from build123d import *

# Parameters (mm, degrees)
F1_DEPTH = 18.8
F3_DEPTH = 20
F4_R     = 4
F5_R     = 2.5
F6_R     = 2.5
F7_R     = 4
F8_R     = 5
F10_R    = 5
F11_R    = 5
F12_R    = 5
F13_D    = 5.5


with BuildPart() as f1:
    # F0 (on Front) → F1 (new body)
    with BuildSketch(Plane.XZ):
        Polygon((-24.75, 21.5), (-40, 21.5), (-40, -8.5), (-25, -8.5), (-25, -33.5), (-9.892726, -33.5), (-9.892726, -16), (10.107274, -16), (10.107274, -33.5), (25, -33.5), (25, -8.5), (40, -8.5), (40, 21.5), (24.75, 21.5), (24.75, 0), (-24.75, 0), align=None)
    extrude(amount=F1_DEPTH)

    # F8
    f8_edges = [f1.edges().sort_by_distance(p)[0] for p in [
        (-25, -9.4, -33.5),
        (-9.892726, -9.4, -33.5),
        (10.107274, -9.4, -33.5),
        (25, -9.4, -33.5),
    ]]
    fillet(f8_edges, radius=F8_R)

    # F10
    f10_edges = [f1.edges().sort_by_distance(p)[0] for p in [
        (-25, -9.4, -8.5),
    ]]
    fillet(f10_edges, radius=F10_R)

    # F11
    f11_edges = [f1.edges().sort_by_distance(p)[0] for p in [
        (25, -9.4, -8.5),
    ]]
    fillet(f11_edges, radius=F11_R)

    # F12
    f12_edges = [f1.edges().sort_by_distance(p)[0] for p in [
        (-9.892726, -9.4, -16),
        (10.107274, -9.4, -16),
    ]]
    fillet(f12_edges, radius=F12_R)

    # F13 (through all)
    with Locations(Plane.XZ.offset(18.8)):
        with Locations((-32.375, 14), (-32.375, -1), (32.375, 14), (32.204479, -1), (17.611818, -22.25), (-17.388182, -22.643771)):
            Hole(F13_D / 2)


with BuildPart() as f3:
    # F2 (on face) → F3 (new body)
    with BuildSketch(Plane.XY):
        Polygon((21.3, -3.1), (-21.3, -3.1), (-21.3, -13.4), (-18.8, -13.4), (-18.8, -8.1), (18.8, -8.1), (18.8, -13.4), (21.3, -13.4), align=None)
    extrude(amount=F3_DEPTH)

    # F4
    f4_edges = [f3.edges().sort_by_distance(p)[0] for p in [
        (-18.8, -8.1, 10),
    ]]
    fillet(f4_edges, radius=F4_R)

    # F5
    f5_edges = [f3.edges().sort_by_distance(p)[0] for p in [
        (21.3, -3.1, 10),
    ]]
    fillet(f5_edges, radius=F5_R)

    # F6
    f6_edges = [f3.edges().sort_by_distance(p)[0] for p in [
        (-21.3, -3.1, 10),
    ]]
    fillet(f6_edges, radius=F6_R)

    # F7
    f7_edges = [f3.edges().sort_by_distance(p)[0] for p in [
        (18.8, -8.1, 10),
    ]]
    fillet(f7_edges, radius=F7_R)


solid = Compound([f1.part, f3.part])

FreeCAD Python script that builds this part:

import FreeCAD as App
import Part
import Sketcher
from FreeCAD import Vector
Q = App.Units.Quantity


def edges_at(feature, points):
    """Names of the edges that pass closest to the given points."""
    edges = feature.Shape.Edges
    near = lambda p: min(range(len(edges)), key=lambda i: edges[i].distToShape(Part.Vertex(*p))[0])
    return sorted({f"Edge{near(p) + 1}" for p in points})

doc = App.newDocument("Part")
body = doc.addObject("PartDesign::Body", "Body")

sketch1 = doc.addObject("Sketcher::SketchObject", "Sketch")
body.addObject(sketch1)
sketch1.AttachmentSupport = (doc.XZ_Plane, [""])
sketch1.MapMode = "FlatFace"
sketch1.addGeometry(Part.LineSegment(Vector(-25, 22, 0), Vector(-40, 22, 0)), False)
sketch1.addGeometry(Part.LineSegment(Vector(-40, 22, 0), Vector(-40, -8, 0)), False)
sketch1.addGeometry(Part.LineSegment(Vector(-40, -8, 0), Vector(-25, -8, 0)), False)
sketch1.addGeometry(Part.LineSegment(Vector(-25, -8, 0), Vector(-25, -34, 0)), False)
sketch1.addGeometry(Part.LineSegment(Vector(-25, -34, 0), Vector(-10, -34, 0)), False)
sketch1.addGeometry(Part.LineSegment(Vector(-10, -34, 0), Vector(-10, -16, 0)), False)
sketch1.addGeometry(Part.LineSegment(Vector(-10, -16, 0), Vector(10, -16, 0)), False)
sketch1.addGeometry(Part.LineSegment(Vector(10, -16, 0), Vector(10, -34, 0)), False)
sketch1.addGeometry(Part.LineSegment(Vector(10, -34, 0), Vector(25, -34, 0)), False)
sketch1.addGeometry(Part.LineSegment(Vector(25, -34, 0), Vector(25, -8, 0)), False)
sketch1.addGeometry(Part.LineSegment(Vector(25, -8, 0), Vector(40, -8, 0)), False)
sketch1.addGeometry(Part.LineSegment(Vector(40, -8, 0), Vector(40, 22, 0)), False)
sketch1.addGeometry(Part.LineSegment(Vector(40, 22, 0), Vector(25, 22, 0)), False)
sketch1.addGeometry(Part.LineSegment(Vector(25, 22, 0), Vector(25, 0, 0)), False)
sketch1.addGeometry(Part.LineSegment(Vector(25, 0, 0), Vector(-25, 0, 0)), False)
sketch1.addGeometry(Part.LineSegment(Vector(-25, 0, 0), Vector(-25, 22, 0)), False)
sketch1.addConstraint(Sketcher.Constraint("Coincident", 0, 2, 1, 1))
sketch1.addConstraint(Sketcher.Constraint("Coincident", 1, 2, 2, 1))
sketch1.addConstraint(Sketcher.Constraint("Coincident", 2, 2, 3, 1))
sketch1.addConstraint(Sketcher.Constraint("Coincident", 3, 2, 4, 1))
sketch1.addConstraint(Sketcher.Constraint("Coincident", 4, 2, 5, 1))
sketch1.addConstraint(Sketcher.Constraint("Coincident", 5, 2, 6, 1))
sketch1.addConstraint(Sketcher.Constraint("Coincident", 6, 2, 7, 1))
sketch1.addConstraint(Sketcher.Constraint("Coincident", 7, 2, 8, 1))
sketch1.addConstraint(Sketcher.Constraint("Coincident", 8, 2, 9, 1))
sketch1.addConstraint(Sketcher.Constraint("Coincident", 9, 2, 10, 1))
sketch1.addConstraint(Sketcher.Constraint("Coincident", 10, 2, 11, 1))
sketch1.addConstraint(Sketcher.Constraint("Coincident", 11, 2, 12, 1))
sketch1.addConstraint(Sketcher.Constraint("Coincident", 12, 2, 13, 1))
sketch1.addConstraint(Sketcher.Constraint("Coincident", 13, 2, 14, 1))
sketch1.addConstraint(Sketcher.Constraint("Coincident", 14, 2, 15, 1))
sketch1.addConstraint(Sketcher.Constraint("Coincident", 15, 2, 0, 1))
sketch1.addConstraint(Sketcher.Constraint("Horizontal", 0))
sketch1.addConstraint(Sketcher.Constraint("Vertical", 1))
sketch1.addConstraint(Sketcher.Constraint("Horizontal", 2))
sketch1.addConstraint(Sketcher.Constraint("Vertical", 3))
sketch1.addConstraint(Sketcher.Constraint("Horizontal", 4))
sketch1.addConstraint(Sketcher.Constraint("Vertical", 5))
sketch1.addConstraint(Sketcher.Constraint("Horizontal", 6))
sketch1.addConstraint(Sketcher.Constraint("Vertical", 7))
sketch1.addConstraint(Sketcher.Constraint("Horizontal", 8))
sketch1.addConstraint(Sketcher.Constraint("Vertical", 9))
sketch1.addConstraint(Sketcher.Constraint("Horizontal", 10))
sketch1.addConstraint(Sketcher.Constraint("Vertical", 11))
sketch1.addConstraint(Sketcher.Constraint("Horizontal", 12))
sketch1.addConstraint(Sketcher.Constraint("Vertical", 13))
sketch1.addConstraint(Sketcher.Constraint("Horizontal", 14))
sketch1.addConstraint(Sketcher.Constraint("Vertical", 15))
sketch1.addConstraint(Sketcher.Constraint("Symmetric", 13, 2, 14, 2, -1, 1))
sketch1.addConstraint(Sketcher.Constraint("Symmetric", 3, 2, 8, 2, -2))
sketch1.addConstraint(Sketcher.Constraint("Symmetric", 1, 2, 10, 2, -2))
sketch1.addConstraint(Sketcher.Constraint("Horizontal", 0, 2, 11, 2))
sketch1.addConstraint(Sketcher.Constraint("DistanceX", 2, 1, 2, 2, Q("15 mm")))
sketch1.addConstraint(Sketcher.Constraint("DistanceX", 6, 1, 6, 2, Q("20 mm")))
sketch1.addConstraint(Sketcher.Constraint("DistanceY", 1, 2, 1, 1, Q("30 mm")))
sketch1.addConstraint(Sketcher.Constraint("DistanceY", 3, 2, 3, 1, Q("25 mm")))
sketch1.addConstraint(Sketcher.Constraint("DistanceX", 14, 2, 14, 1, Q("49.5 mm")))
sketch1.addConstraint(Sketcher.Constraint("DistanceY", 5, 1, 5, 2, Q("17.5 mm")))
sketch1.addConstraint(Sketcher.Constraint("DistanceY", 13, 2, 13, 1, Q("21.5 mm")))
sketch1.addConstraint(Sketcher.Constraint("DistanceX", 0, 2, -1, 1, Q("40 mm")))
sketch1.addConstraint(Sketcher.Constraint("DistanceX", 4, 1, 4, 2, Q("15.107274 mm")))
pad1 = doc.addObject("PartDesign::Pad", "Pad")
body.addObject(pad1)
pad1.Profile = sketch1
pad1.Length = 18.8
doc.recompute()

fillet = doc.addObject("PartDesign::Fillet", "Fillet")
body.addObject(fillet)
fillet.Base = (pad1, edges_at(pad1, [
    (-25, -9.4, -33.5),
    (-9.893, -9.4, -33.5),
    (10.107, -9.4, -33.5),
    (25, -9.4, -33.5),
]))
fillet.Radius = 5
doc.recompute()

fillet2 = doc.addObject("PartDesign::Fillet", "Fillet001")
body.addObject(fillet2)
fillet2.Base = (fillet, edges_at(fillet, [(-25, -9.4, -8.5)]))
fillet2.Radius = 5
doc.recompute()

fillet3 = doc.addObject("PartDesign::Fillet", "Fillet002")
body.addObject(fillet3)
fillet3.Base = (fillet2, edges_at(fillet2, [(25, -9.4, -8.5)]))
fillet3.Radius = 5
doc.recompute()

fillet4 = doc.addObject("PartDesign::Fillet", "Fillet003")
body.addObject(fillet4)
fillet4.Base = (fillet3, edges_at(fillet3, [(-9.893, -9.4, -16), (10.107, -9.4, -16)]))
fillet4.Radius = 5

sketch2 = doc.addObject("Sketcher::SketchObject", "Sketch001")
body.addObject(sketch2)
sketch2.AttachmentSupport = (doc.XZ_Plane, [""])
sketch2.MapMode = "FlatFace"
sketch2.AttachmentOffset = App.Placement(Vector(0, 0, 18.8), App.Rotation())
sketch2.addGeometry(Part.Circle(Vector(-32.4, 14, 0), Vector(0, 0, 1), 2.8), False)
sketch2.addGeometry(Part.Circle(Vector(-32.4, -1, 0), Vector(0, 0, 1), 2.8), False)
sketch2.addGeometry(Part.Circle(Vector(32.4, 14, 0), Vector(0, 0, 1), 2.8), False)
sketch2.addGeometry(Part.Circle(Vector(32.2, -1, 0), Vector(0, 0, 1), 2.8), False)
sketch2.addGeometry(Part.Circle(Vector(17.6, -22.2, 0), Vector(0, 0, 1), 2.8), False)
sketch2.addGeometry(Part.Circle(Vector(-17.4, -22.6, 0), Vector(0, 0, 1), 2.8), False)
sketch2.addConstraint(Sketcher.Constraint("Equal", 0, 1))
sketch2.addConstraint(Sketcher.Constraint("Equal", 1, 2))
sketch2.addConstraint(Sketcher.Constraint("Equal", 2, 3))
sketch2.addConstraint(Sketcher.Constraint("Equal", 3, 4))
sketch2.addConstraint(Sketcher.Constraint("Equal", 4, 5))
sketch2.addConstraint(Sketcher.Constraint("Symmetric", 0, 3, 2, 3, -2))
sketch2.addConstraint(Sketcher.Constraint("Horizontal", 1, 3, 3, 3))
sketch2.addConstraint(Sketcher.Constraint("Vertical", 0, 3, 1, 3))
sketch2.addConstraint(Sketcher.Constraint("Diameter", 0, Q("5.5 mm")))
sketch2.addConstraint(Sketcher.Constraint("DistanceY", -1, 1, 0, 3, Q("14 mm")))
sketch2.addConstraint(Sketcher.Constraint("DistanceY", 1, 3, -1, 1, Q("1 mm")))
sketch2.addConstraint(Sketcher.Constraint("DistanceX", 5, 3, 4, 3, Q("35 mm")))
sketch2.addConstraint(Sketcher.Constraint("DistanceY", 4, 3, -1, 1, Q("22.25 mm")))
sketch2.addConstraint(Sketcher.Constraint("DistanceX", 0, 3, 2, 3, Q("64.75 mm")))
sketch2.addConstraint(Sketcher.Constraint("DistanceX", -1, 1, 3, 3, Q("32.204479 mm")))
sketch2.addConstraint(Sketcher.Constraint("DistanceY", 5, 3, -1, 1, Q("22.643771 mm")))
sketch2.addConstraint(Sketcher.Constraint("DistanceX", 4, 3, 3, 3, Q("14.592661 mm")))
doc.recompute()
hole = doc.addObject("PartDesign::Hole", "Hole")
body.addObject(hole)
hole.Profile = sketch2
hole.ThreadType = "None"
hole.Diameter = 5.5
hole.DepthType = "ThroughAll"
body2 = doc.addObject("PartDesign::Body", "Body001")

sketch3 = doc.addObject("Sketcher::SketchObject", "Sketch002")
body2.addObject(sketch3)
sketch3.AttachmentSupport = (doc.getObject("XY_Plane001"), [""])
sketch3.MapMode = "FlatFace"
sketch3.addGeometry(Part.LineSegment(Vector(21.3, -3.1, 0), Vector(-21.3, -3.1, 0)), False)
sketch3.addGeometry(Part.LineSegment(Vector(-21.3, -3.1, 0), Vector(-21.3, -13.4, 0)), False)
sketch3.addGeometry(Part.LineSegment(Vector(-21.3, -13.4, 0), Vector(-18.8, -13.4, 0)), False)
sketch3.addGeometry(Part.LineSegment(Vector(-18.8, -13.4, 0), Vector(-18.8, -8.1, 0)), False)
sketch3.addGeometry(Part.LineSegment(Vector(-18.8, -8.1, 0), Vector(18.8, -8.1, 0)), False)
sketch3.addGeometry(Part.LineSegment(Vector(18.8, -8.1, 0), Vector(18.8, -13.4, 0)), False)
sketch3.addGeometry(Part.LineSegment(Vector(18.8, -13.4, 0), Vector(21.3, -13.4, 0)), False)
sketch3.addGeometry(Part.LineSegment(Vector(21.3, -13.4, 0), Vector(21.3, -3.1, 0)), False)
sketch3.addConstraint(Sketcher.Constraint("Coincident", 0, 2, 1, 1))
sketch3.addConstraint(Sketcher.Constraint("Coincident", 1, 2, 2, 1))
sketch3.addConstraint(Sketcher.Constraint("Coincident", 2, 2, 3, 1))
sketch3.addConstraint(Sketcher.Constraint("Coincident", 3, 2, 4, 1))
sketch3.addConstraint(Sketcher.Constraint("Coincident", 4, 2, 5, 1))
sketch3.addConstraint(Sketcher.Constraint("Coincident", 5, 2, 6, 1))
sketch3.addConstraint(Sketcher.Constraint("Coincident", 6, 2, 7, 1))
sketch3.addConstraint(Sketcher.Constraint("Coincident", 7, 2, 0, 1))
sketch3.addConstraint(Sketcher.Constraint("Horizontal", 0))
sketch3.addConstraint(Sketcher.Constraint("Vertical", 1))
sketch3.addConstraint(Sketcher.Constraint("Horizontal", 2))
sketch3.addConstraint(Sketcher.Constraint("Vertical", 3))
sketch3.addConstraint(Sketcher.Constraint("Horizontal", 4))
sketch3.addConstraint(Sketcher.Constraint("Vertical", 5))
sketch3.addConstraint(Sketcher.Constraint("Horizontal", 6))
sketch3.addConstraint(Sketcher.Constraint("Vertical", 7))
sketch3.addConstraint(Sketcher.Constraint("Symmetric", 2, 2, 5, 2, -2))
sketch3.addConstraint(Sketcher.Constraint("Equal", 2, 6))
sketch3.addConstraint(Sketcher.Constraint("DistanceX", 0, 2, 0, 1, Q("42.6 mm")))
sketch3.addConstraint(Sketcher.Constraint("DistanceX", 2, 1, 2, 2, Q("2.5 mm")))
sketch3.addConstraint(Sketcher.Constraint("DistanceY", 1, 2, 1, 1, Q("10.3 mm")))
sketch3.addConstraint(Sketcher.Constraint("DistanceY", 3, 1, 3, 2, Q("5.3 mm")))
sketch3.addConstraint(Sketcher.Constraint("DistanceY", 0, 2, -1, 1, Q("3.1 mm")))
pad2 = doc.addObject("PartDesign::Pad", "Pad001")
body2.addObject(pad2)
pad2.Profile = sketch3
pad2.Length = 20
doc.recompute()

fillet5 = doc.addObject("PartDesign::Fillet", "Fillet004")
body2.addObject(fillet5)
fillet5.Base = (pad2, edges_at(pad2, [(-18.8, -8.1, 10)]))
fillet5.Radius = 4
doc.recompute()

fillet6 = doc.addObject("PartDesign::Fillet", "Fillet005")
body2.addObject(fillet6)
fillet6.Base = (fillet5, edges_at(fillet5, [(21.3, -3.1, 10)]))
fillet6.Radius = 2.5
doc.recompute()

fillet7 = doc.addObject("PartDesign::Fillet", "Fillet006")
body2.addObject(fillet7)
fillet7.Base = (fillet6, edges_at(fillet6, [(-21.3, -3.1, 10)]))
fillet7.Radius = 2.5
doc.recompute()

fillet8 = doc.addObject("PartDesign::Fillet", "Fillet007")
body2.addObject(fillet8)
fillet8.Base = (fillet7, edges_at(fillet7, [(18.8, -8.1, 10)]))
fillet8.Radius = 4

doc.recompute()
